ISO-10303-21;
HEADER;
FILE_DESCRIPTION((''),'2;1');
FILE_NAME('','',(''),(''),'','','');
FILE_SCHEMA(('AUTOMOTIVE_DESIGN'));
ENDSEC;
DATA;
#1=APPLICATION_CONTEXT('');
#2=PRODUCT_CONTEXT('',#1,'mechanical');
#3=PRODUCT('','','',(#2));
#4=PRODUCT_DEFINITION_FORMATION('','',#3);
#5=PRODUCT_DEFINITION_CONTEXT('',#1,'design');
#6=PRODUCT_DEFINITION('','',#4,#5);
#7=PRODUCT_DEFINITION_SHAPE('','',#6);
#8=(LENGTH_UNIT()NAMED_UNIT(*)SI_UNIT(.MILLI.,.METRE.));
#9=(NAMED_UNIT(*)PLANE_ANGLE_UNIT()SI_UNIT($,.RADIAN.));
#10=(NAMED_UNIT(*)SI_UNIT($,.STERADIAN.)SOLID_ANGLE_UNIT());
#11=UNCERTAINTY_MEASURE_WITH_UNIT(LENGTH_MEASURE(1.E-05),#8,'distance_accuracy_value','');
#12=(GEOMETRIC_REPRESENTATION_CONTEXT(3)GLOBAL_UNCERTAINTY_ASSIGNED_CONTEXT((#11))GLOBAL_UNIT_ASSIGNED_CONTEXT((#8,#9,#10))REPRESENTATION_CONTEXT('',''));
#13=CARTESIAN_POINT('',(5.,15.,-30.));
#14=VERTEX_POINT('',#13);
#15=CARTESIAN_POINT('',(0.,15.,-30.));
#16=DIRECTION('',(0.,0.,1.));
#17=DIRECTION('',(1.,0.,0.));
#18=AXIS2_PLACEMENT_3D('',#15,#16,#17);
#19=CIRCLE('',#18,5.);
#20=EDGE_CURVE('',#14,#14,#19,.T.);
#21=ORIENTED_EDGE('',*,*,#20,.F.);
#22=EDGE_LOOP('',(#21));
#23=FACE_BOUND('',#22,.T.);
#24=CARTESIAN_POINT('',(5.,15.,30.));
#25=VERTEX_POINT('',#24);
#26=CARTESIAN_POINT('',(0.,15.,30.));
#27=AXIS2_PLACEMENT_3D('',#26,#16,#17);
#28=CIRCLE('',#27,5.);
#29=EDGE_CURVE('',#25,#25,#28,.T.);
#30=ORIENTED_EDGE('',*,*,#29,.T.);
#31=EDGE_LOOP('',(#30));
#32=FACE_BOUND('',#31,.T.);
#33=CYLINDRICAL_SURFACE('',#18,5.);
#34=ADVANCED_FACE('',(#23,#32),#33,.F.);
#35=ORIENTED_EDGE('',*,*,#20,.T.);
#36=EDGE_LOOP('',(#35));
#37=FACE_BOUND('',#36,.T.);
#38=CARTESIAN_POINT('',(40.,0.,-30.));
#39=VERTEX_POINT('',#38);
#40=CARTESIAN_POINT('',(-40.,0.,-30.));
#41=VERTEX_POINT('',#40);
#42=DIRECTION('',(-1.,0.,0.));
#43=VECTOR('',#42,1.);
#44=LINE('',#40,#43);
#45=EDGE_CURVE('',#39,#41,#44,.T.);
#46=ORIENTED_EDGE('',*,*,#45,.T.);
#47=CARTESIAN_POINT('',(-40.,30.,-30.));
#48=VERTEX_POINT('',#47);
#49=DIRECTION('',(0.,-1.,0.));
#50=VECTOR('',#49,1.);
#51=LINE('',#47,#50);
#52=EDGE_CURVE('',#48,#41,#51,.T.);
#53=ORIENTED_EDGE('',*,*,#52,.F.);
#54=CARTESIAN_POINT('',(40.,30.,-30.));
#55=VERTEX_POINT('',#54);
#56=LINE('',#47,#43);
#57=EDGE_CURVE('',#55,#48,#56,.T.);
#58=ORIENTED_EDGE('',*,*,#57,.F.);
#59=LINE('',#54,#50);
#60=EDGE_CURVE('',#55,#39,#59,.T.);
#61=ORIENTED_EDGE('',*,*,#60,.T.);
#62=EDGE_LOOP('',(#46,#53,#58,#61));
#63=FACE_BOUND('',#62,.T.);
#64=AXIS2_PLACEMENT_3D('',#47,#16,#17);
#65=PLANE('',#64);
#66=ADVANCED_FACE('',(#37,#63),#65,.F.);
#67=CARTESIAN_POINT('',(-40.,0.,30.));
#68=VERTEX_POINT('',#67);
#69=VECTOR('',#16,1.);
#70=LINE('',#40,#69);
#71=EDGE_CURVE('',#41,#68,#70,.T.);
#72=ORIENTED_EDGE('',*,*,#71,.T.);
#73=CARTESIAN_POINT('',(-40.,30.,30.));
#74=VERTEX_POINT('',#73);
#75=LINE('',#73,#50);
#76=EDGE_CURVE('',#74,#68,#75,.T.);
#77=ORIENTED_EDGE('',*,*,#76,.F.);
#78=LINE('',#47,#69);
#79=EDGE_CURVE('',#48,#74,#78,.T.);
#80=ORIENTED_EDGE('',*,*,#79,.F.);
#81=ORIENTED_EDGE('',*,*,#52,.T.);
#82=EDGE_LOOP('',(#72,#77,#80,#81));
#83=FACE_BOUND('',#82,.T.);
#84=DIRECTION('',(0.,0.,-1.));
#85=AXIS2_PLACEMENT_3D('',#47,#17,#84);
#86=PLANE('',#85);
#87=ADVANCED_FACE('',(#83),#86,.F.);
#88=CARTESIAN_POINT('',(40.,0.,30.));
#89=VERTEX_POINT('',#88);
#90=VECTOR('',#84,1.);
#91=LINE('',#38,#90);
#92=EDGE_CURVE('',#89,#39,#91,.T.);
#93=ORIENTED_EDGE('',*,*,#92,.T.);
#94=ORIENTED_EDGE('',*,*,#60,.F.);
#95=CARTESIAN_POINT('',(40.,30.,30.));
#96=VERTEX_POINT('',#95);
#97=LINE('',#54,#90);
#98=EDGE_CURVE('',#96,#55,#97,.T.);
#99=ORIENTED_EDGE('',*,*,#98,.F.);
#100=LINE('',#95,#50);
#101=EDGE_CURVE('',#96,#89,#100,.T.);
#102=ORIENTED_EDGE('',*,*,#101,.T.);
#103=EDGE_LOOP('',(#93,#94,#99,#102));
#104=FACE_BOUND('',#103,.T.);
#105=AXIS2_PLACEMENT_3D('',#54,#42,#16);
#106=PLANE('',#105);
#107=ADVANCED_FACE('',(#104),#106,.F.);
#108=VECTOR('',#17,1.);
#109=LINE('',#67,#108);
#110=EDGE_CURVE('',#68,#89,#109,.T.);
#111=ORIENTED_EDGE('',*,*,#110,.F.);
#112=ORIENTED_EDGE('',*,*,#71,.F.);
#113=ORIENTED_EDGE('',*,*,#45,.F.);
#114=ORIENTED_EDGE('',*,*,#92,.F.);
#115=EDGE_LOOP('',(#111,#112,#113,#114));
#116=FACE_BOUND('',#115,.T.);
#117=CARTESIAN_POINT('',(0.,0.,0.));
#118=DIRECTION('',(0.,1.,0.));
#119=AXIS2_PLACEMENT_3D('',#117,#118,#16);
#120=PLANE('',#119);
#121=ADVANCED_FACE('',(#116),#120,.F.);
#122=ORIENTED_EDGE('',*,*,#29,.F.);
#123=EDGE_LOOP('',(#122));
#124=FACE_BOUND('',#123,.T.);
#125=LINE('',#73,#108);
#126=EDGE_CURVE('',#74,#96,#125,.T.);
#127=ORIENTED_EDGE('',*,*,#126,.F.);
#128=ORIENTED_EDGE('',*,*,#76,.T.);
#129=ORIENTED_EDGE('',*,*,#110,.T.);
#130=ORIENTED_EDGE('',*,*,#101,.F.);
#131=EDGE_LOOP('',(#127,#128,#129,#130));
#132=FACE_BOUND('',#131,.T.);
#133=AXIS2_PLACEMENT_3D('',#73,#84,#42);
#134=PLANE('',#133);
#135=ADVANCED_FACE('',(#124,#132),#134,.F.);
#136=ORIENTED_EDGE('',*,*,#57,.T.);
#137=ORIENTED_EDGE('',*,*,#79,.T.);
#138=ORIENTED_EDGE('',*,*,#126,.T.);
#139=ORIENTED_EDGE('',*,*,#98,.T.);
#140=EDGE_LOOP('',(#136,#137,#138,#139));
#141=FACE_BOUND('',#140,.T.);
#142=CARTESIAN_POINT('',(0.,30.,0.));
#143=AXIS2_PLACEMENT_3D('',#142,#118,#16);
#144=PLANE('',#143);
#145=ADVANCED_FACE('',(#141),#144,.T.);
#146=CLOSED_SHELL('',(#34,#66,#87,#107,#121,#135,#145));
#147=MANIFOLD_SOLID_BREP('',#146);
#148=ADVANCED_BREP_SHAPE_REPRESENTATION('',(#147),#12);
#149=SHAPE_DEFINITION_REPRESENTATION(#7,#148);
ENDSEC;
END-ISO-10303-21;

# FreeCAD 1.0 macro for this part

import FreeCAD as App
import Part
import Sketcher


def add_polygon(sketch, points):
    """Adds a closed chain of lines whose ends are joined by coincident constraints."""
    first, n = sketch.GeometryCount, len(points)
    for a, b in zip(points, points[1:] + points[:1]):
        sketch.addGeometry(Part.LineSegment(App.Vector(*a, 0), App.Vector(*b, 0)), False)
    for i in range(n):
        sketch.addConstraint(Sketcher.Constraint("Coincident", first + i, 2, first + (i + 1) % n, 1))

doc = App.newDocument("Part")
body = doc.addObject("PartDesign::Body", "Body")

# Sketch on XZ plane
sketch1 = body.newObject("Sketcher::SketchObject", "Sketch")
sketch1.AttachmentSupport = (doc.getObject("XZ_Plane"), [""])
sketch1.MapMode = "FlatFace"
add_polygon(sketch1, [(-40, -30), (-40, 30), (40, 30), (40, -30)])  # lines 0-3
sketch1.addConstraint(Sketcher.Constraint("Vertical", 0))
sketch1.addConstraint(Sketcher.Constraint("Horizontal", 1))
sketch1.addConstraint(Sketcher.Constraint("Vertical", 2))
sketch1.addConstraint(Sketcher.Constraint("Horizontal", 3))
sketch1.addConstraint(Sketcher.Constraint("Symmetric", 0, 2, 2, 2, -1, 1))
sketch1.addConstraint(Sketcher.Constraint("DistanceX", 1, 1, 1, 2, 80.0))
sketch1.addConstraint(Sketcher.Constraint("DistanceY", 0, 1, 0, 2, 60.0))
pad1 = body.newObject("PartDesign::Pad", "Pad")
pad1.Profile = sketch1
pad1.Length = 30
pad1.Reversed = True

# Sketch on XY plane
sketch2 = body.newObject("Sketcher::SketchObject", "Sketch001")
sketch2.AttachmentSupport = (doc.getObject("XY_Plane"), [""])
sketch2.MapMode = "FlatFace"
sketch2.AttachmentOffset = App.Placement(App.Vector(0, 0, 30), App.Rotation())
sketch2.addGeometry(Part.Circle(App.Vector(0, 15, 0), App.Vector(0, 0, 1), 5), False)
sketch2.addConstraint(Sketcher.Constraint("PointOnObject", 0, 3, -2))
sketch2.addConstraint(Sketcher.Constraint("Diameter", 0, 10.0))
sketch2.addConstraint(Sketcher.Constraint("DistanceY", -1, 1, 0, 3, 15.0))
pocket1 = body.newObject("PartDesign::Pocket", "Pocket")
pocket1.Profile = sketch2
pocket1.Type = "ThroughAll"

doc.recompute()
